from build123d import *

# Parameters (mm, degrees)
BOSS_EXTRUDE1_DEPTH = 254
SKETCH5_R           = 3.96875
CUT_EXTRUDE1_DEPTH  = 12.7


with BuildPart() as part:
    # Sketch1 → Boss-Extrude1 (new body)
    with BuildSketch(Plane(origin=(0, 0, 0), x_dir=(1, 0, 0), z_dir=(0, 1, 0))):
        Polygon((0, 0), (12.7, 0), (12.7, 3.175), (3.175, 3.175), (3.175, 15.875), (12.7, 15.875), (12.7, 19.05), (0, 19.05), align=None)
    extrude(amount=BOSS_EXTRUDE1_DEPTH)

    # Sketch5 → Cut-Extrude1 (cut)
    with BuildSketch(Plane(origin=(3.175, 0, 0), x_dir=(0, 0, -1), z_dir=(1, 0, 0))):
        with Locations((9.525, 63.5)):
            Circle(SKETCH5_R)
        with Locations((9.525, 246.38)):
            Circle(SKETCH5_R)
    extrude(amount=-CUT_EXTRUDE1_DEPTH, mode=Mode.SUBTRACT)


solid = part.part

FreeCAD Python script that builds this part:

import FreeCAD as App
import Part
import Sketcher
from FreeCAD import Vector
Q = App.Units.Quantity

doc = App.newDocument("Part")
body = doc.addObject("PartDesign::Body", "Body")

sketch1 = doc.addObject("Sketcher::SketchObject", "Sketch")
body.addObject(sketch1)
sketch1.AttachmentSupport = (doc.XZ_Plane, [""])
sketch1.MapMode = "FlatFace"
sketch1.addGeometry([
    Part.LineSegment(Vector(0, 0, 0), Vector(12.7, 0, 0)),
    Part.LineSegment(Vector(12.7, 0, 0), Vector(12.7, -3.2, 0)),
    Part.LineSegment(Vector(12.7, -3.2, 0), Vector(3.2, -3.2, 0)),
    Part.LineSegment(Vector(3.2, -3.2, 0), Vector(3.2, -15.9, 0)),
    Part.LineSegment(Vector(3.2, -15.9, 0), Vector(12.7, -15.9, 0)),
    Part.LineSegment(Vector(12.7, -15.9, 0), Vector(12.7, -19.1, 0)),
    Part.LineSegment(Vector(12.7, -19.1, 0), Vector(0, -19.1, 0)),
    Part.LineSegment(Vector(0, -19.1, 0), Vector(0, 0, 0)),
], False)
sketch1.addConstraint([
    Sketcher.Constraint("Coincident", 0, 2, 1, 1),
    Sketcher.Constraint("Coincident", 1, 2, 2, 1),
    Sketcher.Constraint("Coincident", 2, 2, 3, 1),
    Sketcher.Constraint("Coincident", 3, 2, 4, 1),
    Sketcher.Constraint("Coincident", 4, 2, 5, 1),
    Sketcher.Constraint("Coincident", 5, 2, 6, 1),
    Sketcher.Constraint("Coincident", 6, 2, 7, 1),
    Sketcher.Constraint("Coincident", 7, 2, 0, 1),
    Sketcher.Constraint("Horizontal", 0),
    Sketcher.Constraint("Vertical", 1),
    Sketcher.Constraint("Horizontal", 2),
    Sketcher.Constraint("Vertical", 3),
    Sketcher.Constraint("Horizontal", 4),
    Sketcher.Constraint("Vertical", 5),
    Sketcher.Constraint("Horizontal", 6),
    Sketcher.Constraint("Vertical", 7),
    Sketcher.Constraint("Coincident", 7, 2, -1, 1),
    Sketcher.Constraint("Vertical", 1, 2, 4, 2),
    Sketcher.Constraint("Equal", 6, 3),
    Sketcher.Constraint("Equal", 1, 5),
    Sketcher.Constraint("DistanceX", 0, 1, 0, 2, Q("0.5 in")),
    Sketcher.Constraint("DistanceY", 7, 1, 7, 2, Q("0.75 in")),
    Sketcher.Constraint("DistanceX", 2, 2, 2, 1, Q("0.375 in")),
])
pad1 = doc.addObject("PartDesign::Pad", "Pad")
body.addObject(pad1)
pad1.Profile = sketch1
pad1.Length = Q("10 in")
pad1.Reversed = True

sketch2 = doc.addObject("Sketcher::SketchObject", "Sketch001")
body.addObject(sketch2)
sketch2.AttachmentSupport = (doc.YZ_Plane, [""])
sketch2.MapMode = "FlatFace"
sketch2.AttachmentOffset = App.Placement(Vector(0, 0, 0.125 * 25.4), App.Rotation())
sketch2.addGeometry([
    Part.Circle(Vector(63.5, -9.5, 0), Vector(0, 0, 1), 4),
    Part.Circle(Vector(246.4, -9.5, 0), Vector(0, 0, 1), 4),
], False)
sketch2.addConstraint([
    Sketcher.Constraint("Equal", 0, 1),
    Sketcher.Constraint("Horizontal", 0, 3, 1, 3),
    Sketcher.Constraint("Diameter", 0, Q("0.3125 in")),
    Sketcher.Constraint("DistanceX", -1, 1, 0, 3, Q("2.5 in")),
    Sketcher.Constraint("DistanceX", -1, 1, 1, 3, Q("9.7 in")),
    Sketcher.Constraint("DistanceY", 0, 3, -1, 1, Q("0.375 in")),
])
pocket1 = doc.addObject("PartDesign::Pocket", "Pocket")
body.addObject(pocket1)
pocket1.Profile = sketch2
pocket1.Length = Q("0.5 in")

doc.recompute()
